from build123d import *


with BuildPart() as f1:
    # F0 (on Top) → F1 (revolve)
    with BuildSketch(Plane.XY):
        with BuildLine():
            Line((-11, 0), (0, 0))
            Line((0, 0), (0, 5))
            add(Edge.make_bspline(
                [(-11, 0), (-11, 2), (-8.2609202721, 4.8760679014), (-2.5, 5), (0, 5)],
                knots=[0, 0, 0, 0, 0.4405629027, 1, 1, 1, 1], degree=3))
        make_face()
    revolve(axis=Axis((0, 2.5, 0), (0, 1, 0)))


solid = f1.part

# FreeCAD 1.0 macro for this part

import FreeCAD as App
import Part
import Sketcher
from FreeCAD import Vector

doc = App.newDocument("Part")
body = doc.addObject("PartDesign::Body", "Body")

# Sketch on XY plane
sketch1 = body.newObject("Sketcher::SketchObject", "Sketch")
sketch1.AttachmentSupport = (doc.getObject("XY_Plane"), [""])
sketch1.MapMode = "FlatFace"
sketch1.addGeometry([
    Part.LineSegment(Vector(-11, 0, 0), Vector(0, 0, 0)),
    Part.LineSegment(Vector(0, 0, 0), Vector(0, 5, 0)),
    Part.BSplineCurve([Vector(-11, 0, 0), Vector(-11, 2, 0), Vector(-8.26092, 4.876068, 0), Vector(-2.5, 5, 0), Vector(0, 5, 0)], [4, 1, 4], [0, 0.440562903, 1], False, 3, [1, 1, 1, 1, 1], False),
], False)
sketch1.addConstraint([
    Sketcher.Constraint("Block", 2),
    Sketcher.Constraint("Coincident", 0, 2, 1, 1),
    Sketcher.Constraint("Coincident", 1, 2, 2, 2),
    Sketcher.Constraint("Coincident", 2, 1, 0, 1),
    Sketcher.Constraint("Horizontal", 0),
    Sketcher.Constraint("Vertical", 1),
])
revolution = body.newObject("PartDesign::Revolution", "Revolution")
revolution.Profile = sketch1
revolution.ReferenceAxis = (sketch1, ["V_Axis"])
revolution.Angle = 360

doc.recompute()
